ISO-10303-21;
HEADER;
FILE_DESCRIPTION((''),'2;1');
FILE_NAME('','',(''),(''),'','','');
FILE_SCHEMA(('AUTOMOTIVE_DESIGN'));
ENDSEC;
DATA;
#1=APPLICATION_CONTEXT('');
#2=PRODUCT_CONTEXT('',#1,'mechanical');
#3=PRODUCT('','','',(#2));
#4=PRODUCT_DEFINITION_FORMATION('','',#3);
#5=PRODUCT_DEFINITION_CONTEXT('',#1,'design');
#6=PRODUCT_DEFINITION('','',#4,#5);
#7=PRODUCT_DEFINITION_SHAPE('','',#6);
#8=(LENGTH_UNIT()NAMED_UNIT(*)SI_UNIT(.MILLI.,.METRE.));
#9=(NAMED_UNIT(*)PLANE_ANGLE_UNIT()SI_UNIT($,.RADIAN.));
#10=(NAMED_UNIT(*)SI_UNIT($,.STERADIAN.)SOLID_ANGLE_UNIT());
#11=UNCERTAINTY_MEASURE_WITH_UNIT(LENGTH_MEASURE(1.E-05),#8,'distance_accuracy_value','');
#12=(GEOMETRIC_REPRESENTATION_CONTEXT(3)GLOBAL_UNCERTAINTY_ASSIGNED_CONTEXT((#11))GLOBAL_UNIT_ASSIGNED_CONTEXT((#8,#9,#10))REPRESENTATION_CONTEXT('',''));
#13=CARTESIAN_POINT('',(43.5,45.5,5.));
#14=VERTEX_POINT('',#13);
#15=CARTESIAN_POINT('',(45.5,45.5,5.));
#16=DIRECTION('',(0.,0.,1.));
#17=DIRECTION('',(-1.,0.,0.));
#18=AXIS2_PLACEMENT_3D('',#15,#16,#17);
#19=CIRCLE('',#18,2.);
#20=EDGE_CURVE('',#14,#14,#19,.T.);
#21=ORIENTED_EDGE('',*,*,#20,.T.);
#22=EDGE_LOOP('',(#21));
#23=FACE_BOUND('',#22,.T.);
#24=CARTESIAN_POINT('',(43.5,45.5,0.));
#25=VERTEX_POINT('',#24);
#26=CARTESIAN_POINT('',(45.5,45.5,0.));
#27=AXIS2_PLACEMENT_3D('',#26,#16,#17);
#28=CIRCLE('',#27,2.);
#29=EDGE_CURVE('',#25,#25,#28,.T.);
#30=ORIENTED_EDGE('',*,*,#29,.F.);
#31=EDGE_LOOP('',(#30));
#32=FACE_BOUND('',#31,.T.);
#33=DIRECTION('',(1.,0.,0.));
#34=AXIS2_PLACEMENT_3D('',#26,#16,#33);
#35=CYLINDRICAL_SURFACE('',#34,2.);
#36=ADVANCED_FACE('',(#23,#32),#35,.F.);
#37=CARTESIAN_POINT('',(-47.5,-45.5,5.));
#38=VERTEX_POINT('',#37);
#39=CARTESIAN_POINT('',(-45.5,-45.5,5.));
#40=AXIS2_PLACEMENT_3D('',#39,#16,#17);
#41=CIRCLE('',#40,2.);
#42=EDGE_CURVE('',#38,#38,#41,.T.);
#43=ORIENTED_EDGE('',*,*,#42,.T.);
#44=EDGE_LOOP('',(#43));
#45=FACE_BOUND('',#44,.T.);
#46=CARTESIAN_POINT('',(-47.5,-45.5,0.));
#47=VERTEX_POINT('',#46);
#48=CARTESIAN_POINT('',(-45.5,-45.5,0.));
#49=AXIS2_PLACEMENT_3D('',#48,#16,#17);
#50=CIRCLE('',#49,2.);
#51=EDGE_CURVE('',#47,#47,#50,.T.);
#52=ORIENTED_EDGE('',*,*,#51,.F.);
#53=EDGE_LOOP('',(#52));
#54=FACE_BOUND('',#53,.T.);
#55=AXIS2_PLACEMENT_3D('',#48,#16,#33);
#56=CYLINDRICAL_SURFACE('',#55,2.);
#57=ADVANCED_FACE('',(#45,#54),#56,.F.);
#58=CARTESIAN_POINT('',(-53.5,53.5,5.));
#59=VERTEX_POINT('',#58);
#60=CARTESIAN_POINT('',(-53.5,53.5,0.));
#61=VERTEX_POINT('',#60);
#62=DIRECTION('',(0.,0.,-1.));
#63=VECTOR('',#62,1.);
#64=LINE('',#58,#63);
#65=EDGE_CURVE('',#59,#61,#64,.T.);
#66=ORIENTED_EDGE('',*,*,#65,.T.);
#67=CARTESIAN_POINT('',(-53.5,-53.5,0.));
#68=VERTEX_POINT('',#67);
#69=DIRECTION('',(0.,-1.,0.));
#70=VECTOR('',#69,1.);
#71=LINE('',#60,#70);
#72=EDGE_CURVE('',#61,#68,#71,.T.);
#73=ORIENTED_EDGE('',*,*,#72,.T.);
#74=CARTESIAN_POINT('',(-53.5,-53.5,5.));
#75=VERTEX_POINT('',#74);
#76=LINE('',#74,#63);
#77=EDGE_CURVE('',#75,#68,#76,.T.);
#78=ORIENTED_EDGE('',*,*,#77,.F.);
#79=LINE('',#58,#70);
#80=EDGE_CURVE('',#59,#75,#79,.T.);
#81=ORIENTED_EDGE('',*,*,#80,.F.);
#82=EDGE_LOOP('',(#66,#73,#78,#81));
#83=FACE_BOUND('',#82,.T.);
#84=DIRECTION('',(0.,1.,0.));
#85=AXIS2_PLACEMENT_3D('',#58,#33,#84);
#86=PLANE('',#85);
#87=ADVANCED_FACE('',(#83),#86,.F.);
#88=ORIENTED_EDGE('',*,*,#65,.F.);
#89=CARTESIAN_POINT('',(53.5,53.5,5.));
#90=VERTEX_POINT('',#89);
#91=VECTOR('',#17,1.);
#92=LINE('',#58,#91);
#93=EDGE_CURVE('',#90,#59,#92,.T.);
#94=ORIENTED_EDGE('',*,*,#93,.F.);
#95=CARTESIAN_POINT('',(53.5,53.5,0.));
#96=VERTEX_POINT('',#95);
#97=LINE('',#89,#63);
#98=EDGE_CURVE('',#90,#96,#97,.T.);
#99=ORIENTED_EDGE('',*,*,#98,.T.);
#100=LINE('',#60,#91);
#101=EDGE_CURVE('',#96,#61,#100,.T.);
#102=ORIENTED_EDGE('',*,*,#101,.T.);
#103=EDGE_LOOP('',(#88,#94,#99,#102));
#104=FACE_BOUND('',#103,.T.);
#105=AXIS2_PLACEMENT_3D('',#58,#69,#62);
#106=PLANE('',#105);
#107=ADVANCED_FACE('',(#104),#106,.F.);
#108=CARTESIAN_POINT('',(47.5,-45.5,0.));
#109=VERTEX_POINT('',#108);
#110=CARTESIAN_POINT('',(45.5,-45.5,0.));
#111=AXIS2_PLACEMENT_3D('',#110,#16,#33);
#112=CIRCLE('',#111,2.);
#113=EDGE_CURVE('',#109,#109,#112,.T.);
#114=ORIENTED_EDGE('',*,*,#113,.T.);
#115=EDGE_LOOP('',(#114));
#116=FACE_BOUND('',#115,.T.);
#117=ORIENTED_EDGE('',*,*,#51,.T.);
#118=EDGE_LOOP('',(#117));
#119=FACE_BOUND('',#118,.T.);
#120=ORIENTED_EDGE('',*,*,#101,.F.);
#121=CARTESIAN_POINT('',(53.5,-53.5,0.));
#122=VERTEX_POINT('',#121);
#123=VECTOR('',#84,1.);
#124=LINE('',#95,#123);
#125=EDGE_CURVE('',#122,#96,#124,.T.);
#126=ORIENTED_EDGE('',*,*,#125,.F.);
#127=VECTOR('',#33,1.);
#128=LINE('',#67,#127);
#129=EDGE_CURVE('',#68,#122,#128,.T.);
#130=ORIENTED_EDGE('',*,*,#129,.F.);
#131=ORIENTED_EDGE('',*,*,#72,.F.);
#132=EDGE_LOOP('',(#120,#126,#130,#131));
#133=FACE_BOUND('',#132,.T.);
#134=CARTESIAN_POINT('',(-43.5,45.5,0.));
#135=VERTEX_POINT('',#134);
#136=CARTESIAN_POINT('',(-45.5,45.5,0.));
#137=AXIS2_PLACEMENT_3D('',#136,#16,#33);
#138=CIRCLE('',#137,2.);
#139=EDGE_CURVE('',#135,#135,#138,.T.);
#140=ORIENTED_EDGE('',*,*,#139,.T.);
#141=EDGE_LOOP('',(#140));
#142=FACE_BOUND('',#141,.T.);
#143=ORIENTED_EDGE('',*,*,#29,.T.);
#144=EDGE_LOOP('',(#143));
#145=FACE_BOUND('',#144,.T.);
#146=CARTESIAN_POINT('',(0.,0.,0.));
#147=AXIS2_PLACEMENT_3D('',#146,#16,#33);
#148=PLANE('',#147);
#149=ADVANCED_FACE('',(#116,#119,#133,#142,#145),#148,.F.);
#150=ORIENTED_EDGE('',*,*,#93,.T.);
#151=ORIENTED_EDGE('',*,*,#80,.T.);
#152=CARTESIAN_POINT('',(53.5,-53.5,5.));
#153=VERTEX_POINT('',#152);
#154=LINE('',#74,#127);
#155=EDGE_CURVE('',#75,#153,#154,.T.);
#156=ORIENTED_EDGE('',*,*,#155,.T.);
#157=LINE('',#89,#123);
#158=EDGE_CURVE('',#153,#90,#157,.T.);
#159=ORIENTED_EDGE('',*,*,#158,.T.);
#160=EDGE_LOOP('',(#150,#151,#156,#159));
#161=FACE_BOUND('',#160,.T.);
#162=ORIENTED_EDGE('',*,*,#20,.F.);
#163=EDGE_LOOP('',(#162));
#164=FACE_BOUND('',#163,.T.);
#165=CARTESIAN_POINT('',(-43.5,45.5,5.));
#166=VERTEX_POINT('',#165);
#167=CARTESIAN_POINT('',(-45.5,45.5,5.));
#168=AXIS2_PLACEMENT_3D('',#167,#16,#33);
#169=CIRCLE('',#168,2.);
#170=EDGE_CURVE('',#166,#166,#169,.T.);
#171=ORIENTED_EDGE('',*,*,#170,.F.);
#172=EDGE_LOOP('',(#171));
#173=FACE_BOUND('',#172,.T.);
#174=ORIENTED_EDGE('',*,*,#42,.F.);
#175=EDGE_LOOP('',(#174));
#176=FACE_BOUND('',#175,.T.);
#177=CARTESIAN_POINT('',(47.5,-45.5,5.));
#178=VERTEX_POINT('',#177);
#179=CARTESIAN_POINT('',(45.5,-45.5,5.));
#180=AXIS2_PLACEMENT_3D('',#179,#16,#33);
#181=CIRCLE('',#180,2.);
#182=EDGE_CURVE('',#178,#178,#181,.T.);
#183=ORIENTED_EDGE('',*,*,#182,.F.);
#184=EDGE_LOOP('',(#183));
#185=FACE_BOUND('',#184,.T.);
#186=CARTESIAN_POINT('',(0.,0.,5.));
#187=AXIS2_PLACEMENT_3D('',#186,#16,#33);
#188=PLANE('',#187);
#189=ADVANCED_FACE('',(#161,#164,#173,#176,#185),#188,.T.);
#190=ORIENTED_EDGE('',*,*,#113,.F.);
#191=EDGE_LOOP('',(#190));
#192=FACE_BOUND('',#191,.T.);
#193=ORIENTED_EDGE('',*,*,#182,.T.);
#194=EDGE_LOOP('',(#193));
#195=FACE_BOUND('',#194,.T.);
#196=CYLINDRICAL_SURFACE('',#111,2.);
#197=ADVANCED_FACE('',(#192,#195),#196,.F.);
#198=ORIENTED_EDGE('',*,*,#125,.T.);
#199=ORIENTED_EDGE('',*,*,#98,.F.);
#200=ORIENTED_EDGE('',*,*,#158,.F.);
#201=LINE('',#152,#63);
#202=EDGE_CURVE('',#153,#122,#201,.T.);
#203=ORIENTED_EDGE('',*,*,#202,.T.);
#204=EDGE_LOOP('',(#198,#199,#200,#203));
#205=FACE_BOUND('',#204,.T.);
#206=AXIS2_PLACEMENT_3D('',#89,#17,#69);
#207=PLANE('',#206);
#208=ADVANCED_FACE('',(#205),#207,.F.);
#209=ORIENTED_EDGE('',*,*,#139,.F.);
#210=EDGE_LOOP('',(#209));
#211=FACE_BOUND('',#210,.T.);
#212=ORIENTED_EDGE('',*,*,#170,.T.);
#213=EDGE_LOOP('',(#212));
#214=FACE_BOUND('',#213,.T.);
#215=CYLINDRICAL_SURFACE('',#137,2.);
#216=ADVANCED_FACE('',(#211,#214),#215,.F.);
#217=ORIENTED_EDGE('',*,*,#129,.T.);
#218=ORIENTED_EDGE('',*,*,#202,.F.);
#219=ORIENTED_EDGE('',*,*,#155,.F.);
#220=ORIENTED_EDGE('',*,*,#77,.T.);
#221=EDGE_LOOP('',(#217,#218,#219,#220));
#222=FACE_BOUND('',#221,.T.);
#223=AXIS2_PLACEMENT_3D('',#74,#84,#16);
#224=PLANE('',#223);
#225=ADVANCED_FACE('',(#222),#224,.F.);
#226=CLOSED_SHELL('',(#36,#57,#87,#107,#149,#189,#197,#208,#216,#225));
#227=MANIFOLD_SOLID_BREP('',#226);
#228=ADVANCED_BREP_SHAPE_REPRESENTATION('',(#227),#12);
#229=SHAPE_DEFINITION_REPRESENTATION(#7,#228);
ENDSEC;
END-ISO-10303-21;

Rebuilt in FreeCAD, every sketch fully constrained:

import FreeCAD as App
import Part
import Sketcher

V = App.Vector

doc = App.newDocument("Part")
body = doc.addObject("PartDesign::Body", "Body")

# Sketch on XY plane
sketch1 = doc.addObject("Sketcher::SketchObject", "Sketch")
body.addObject(sketch1)
sketch1.AttachmentSupport = (doc.XY_Plane, [""])
sketch1.MapMode = "FlatFace"
sketch1.addGeometry(Part.LineSegment(V(-54, 54, 0), V(-54, -54, 0)), False)
sketch1.addGeometry(Part.LineSegment(V(-54, -54, 0), V(54, -54, 0)), False)
sketch1.addGeometry(Part.LineSegment(V(54, -54, 0), V(54, 54, 0)), False)
sketch1.addGeometry(Part.LineSegment(V(54, 54, 0), V(-54, 54, 0)), False)
sketch1.addConstraint(Sketcher.Constraint("Coincident", 0, 2, 1, 1))
sketch1.addConstraint(Sketcher.Constraint("Coincident", 1, 2, 2, 1))
sketch1.addConstraint(Sketcher.Constraint("Coincident", 2, 2, 3, 1))
sketch1.addConstraint(Sketcher.Constraint("Coincident", 3, 2, 0, 1))
sketch1.addConstraint(Sketcher.Constraint("Vertical", 0))
sketch1.addConstraint(Sketcher.Constraint("Horizontal", 1))
sketch1.addConstraint(Sketcher.Constraint("Vertical", 2))
sketch1.addConstraint(Sketcher.Constraint("Horizontal", 3))
sketch1.addConstraint(Sketcher.Constraint("Symmetric", 0, 2, 2, 2, -1, 1))
sketch1.addConstraint(Sketcher.Constraint("Equal", 3, 0))
sketch1.addConstraint(Sketcher.Constraint("DistanceX", 1, 1, 1, 2, 107.0))
pad1 = doc.addObject("PartDesign::Pad", "Pad")
body.addObject(pad1)
pad1.Profile = sketch1
pad1.Length = 5

# Sketch on XY plane
sketch2 = doc.addObject("Sketcher::SketchObject", "Sketch001")
body.addObject(sketch2)
sketch2.AttachmentSupport = (doc.XY_Plane, [""])
sketch2.MapMode = "FlatFace"
sketch2.AttachmentOffset = App.Placement(V(0, 0, 5), App.Rotation())
sketch2.addGeometry(Part.Circle(V(-45.5, 45.5, 0), V(0, 0, 1), 2), False)
sketch2.addGeometry(Part.Circle(V(-45.5, -45.5, 0), V(0, 0, 1), 2), False)
sketch2.addGeometry(Part.Circle(V(45.5, -45.5, 0), V(0, 0, 1), 2), False)
sketch2.addGeometry(Part.Circle(V(45.5, 45.5, 0), V(0, 0, 1), 2), False)
sketch2.addConstraint(Sketcher.Constraint("Equal", 0, 1))
sketch2.addConstraint(Sketcher.Constraint("Equal", 1, 2))
sketch2.addConstraint(Sketcher.Constraint("Equal", 2, 3))
sketch2.addConstraint(Sketcher.Constraint("Symmetric", 0, 3, 2, 3, -1, 1))
sketch2.addConstraint(Sketcher.Constraint("Symmetric", 1, 3, 3, 3, -1, 1))
sketch2.addConstraint(Sketcher.Constraint("Symmetric", 1, 3, 2, 3, -2))
sketch2.addConstraint(Sketcher.Constraint("Diameter", 0, 4.0))
sketch2.addConstraint(Sketcher.Constraint("DistanceY", 1, 3, 0, 3, 91.0))
sketch2.addConstraint(Sketcher.Constraint("DistanceX", 1, 3, 2, 3, 91.0))
pocket1 = doc.addObject("PartDesign::Pocket", "Pocket")
body.addObject(pocket1)
pocket1.Profile = sketch2
pocket1.Length = 5

doc.recompute()
